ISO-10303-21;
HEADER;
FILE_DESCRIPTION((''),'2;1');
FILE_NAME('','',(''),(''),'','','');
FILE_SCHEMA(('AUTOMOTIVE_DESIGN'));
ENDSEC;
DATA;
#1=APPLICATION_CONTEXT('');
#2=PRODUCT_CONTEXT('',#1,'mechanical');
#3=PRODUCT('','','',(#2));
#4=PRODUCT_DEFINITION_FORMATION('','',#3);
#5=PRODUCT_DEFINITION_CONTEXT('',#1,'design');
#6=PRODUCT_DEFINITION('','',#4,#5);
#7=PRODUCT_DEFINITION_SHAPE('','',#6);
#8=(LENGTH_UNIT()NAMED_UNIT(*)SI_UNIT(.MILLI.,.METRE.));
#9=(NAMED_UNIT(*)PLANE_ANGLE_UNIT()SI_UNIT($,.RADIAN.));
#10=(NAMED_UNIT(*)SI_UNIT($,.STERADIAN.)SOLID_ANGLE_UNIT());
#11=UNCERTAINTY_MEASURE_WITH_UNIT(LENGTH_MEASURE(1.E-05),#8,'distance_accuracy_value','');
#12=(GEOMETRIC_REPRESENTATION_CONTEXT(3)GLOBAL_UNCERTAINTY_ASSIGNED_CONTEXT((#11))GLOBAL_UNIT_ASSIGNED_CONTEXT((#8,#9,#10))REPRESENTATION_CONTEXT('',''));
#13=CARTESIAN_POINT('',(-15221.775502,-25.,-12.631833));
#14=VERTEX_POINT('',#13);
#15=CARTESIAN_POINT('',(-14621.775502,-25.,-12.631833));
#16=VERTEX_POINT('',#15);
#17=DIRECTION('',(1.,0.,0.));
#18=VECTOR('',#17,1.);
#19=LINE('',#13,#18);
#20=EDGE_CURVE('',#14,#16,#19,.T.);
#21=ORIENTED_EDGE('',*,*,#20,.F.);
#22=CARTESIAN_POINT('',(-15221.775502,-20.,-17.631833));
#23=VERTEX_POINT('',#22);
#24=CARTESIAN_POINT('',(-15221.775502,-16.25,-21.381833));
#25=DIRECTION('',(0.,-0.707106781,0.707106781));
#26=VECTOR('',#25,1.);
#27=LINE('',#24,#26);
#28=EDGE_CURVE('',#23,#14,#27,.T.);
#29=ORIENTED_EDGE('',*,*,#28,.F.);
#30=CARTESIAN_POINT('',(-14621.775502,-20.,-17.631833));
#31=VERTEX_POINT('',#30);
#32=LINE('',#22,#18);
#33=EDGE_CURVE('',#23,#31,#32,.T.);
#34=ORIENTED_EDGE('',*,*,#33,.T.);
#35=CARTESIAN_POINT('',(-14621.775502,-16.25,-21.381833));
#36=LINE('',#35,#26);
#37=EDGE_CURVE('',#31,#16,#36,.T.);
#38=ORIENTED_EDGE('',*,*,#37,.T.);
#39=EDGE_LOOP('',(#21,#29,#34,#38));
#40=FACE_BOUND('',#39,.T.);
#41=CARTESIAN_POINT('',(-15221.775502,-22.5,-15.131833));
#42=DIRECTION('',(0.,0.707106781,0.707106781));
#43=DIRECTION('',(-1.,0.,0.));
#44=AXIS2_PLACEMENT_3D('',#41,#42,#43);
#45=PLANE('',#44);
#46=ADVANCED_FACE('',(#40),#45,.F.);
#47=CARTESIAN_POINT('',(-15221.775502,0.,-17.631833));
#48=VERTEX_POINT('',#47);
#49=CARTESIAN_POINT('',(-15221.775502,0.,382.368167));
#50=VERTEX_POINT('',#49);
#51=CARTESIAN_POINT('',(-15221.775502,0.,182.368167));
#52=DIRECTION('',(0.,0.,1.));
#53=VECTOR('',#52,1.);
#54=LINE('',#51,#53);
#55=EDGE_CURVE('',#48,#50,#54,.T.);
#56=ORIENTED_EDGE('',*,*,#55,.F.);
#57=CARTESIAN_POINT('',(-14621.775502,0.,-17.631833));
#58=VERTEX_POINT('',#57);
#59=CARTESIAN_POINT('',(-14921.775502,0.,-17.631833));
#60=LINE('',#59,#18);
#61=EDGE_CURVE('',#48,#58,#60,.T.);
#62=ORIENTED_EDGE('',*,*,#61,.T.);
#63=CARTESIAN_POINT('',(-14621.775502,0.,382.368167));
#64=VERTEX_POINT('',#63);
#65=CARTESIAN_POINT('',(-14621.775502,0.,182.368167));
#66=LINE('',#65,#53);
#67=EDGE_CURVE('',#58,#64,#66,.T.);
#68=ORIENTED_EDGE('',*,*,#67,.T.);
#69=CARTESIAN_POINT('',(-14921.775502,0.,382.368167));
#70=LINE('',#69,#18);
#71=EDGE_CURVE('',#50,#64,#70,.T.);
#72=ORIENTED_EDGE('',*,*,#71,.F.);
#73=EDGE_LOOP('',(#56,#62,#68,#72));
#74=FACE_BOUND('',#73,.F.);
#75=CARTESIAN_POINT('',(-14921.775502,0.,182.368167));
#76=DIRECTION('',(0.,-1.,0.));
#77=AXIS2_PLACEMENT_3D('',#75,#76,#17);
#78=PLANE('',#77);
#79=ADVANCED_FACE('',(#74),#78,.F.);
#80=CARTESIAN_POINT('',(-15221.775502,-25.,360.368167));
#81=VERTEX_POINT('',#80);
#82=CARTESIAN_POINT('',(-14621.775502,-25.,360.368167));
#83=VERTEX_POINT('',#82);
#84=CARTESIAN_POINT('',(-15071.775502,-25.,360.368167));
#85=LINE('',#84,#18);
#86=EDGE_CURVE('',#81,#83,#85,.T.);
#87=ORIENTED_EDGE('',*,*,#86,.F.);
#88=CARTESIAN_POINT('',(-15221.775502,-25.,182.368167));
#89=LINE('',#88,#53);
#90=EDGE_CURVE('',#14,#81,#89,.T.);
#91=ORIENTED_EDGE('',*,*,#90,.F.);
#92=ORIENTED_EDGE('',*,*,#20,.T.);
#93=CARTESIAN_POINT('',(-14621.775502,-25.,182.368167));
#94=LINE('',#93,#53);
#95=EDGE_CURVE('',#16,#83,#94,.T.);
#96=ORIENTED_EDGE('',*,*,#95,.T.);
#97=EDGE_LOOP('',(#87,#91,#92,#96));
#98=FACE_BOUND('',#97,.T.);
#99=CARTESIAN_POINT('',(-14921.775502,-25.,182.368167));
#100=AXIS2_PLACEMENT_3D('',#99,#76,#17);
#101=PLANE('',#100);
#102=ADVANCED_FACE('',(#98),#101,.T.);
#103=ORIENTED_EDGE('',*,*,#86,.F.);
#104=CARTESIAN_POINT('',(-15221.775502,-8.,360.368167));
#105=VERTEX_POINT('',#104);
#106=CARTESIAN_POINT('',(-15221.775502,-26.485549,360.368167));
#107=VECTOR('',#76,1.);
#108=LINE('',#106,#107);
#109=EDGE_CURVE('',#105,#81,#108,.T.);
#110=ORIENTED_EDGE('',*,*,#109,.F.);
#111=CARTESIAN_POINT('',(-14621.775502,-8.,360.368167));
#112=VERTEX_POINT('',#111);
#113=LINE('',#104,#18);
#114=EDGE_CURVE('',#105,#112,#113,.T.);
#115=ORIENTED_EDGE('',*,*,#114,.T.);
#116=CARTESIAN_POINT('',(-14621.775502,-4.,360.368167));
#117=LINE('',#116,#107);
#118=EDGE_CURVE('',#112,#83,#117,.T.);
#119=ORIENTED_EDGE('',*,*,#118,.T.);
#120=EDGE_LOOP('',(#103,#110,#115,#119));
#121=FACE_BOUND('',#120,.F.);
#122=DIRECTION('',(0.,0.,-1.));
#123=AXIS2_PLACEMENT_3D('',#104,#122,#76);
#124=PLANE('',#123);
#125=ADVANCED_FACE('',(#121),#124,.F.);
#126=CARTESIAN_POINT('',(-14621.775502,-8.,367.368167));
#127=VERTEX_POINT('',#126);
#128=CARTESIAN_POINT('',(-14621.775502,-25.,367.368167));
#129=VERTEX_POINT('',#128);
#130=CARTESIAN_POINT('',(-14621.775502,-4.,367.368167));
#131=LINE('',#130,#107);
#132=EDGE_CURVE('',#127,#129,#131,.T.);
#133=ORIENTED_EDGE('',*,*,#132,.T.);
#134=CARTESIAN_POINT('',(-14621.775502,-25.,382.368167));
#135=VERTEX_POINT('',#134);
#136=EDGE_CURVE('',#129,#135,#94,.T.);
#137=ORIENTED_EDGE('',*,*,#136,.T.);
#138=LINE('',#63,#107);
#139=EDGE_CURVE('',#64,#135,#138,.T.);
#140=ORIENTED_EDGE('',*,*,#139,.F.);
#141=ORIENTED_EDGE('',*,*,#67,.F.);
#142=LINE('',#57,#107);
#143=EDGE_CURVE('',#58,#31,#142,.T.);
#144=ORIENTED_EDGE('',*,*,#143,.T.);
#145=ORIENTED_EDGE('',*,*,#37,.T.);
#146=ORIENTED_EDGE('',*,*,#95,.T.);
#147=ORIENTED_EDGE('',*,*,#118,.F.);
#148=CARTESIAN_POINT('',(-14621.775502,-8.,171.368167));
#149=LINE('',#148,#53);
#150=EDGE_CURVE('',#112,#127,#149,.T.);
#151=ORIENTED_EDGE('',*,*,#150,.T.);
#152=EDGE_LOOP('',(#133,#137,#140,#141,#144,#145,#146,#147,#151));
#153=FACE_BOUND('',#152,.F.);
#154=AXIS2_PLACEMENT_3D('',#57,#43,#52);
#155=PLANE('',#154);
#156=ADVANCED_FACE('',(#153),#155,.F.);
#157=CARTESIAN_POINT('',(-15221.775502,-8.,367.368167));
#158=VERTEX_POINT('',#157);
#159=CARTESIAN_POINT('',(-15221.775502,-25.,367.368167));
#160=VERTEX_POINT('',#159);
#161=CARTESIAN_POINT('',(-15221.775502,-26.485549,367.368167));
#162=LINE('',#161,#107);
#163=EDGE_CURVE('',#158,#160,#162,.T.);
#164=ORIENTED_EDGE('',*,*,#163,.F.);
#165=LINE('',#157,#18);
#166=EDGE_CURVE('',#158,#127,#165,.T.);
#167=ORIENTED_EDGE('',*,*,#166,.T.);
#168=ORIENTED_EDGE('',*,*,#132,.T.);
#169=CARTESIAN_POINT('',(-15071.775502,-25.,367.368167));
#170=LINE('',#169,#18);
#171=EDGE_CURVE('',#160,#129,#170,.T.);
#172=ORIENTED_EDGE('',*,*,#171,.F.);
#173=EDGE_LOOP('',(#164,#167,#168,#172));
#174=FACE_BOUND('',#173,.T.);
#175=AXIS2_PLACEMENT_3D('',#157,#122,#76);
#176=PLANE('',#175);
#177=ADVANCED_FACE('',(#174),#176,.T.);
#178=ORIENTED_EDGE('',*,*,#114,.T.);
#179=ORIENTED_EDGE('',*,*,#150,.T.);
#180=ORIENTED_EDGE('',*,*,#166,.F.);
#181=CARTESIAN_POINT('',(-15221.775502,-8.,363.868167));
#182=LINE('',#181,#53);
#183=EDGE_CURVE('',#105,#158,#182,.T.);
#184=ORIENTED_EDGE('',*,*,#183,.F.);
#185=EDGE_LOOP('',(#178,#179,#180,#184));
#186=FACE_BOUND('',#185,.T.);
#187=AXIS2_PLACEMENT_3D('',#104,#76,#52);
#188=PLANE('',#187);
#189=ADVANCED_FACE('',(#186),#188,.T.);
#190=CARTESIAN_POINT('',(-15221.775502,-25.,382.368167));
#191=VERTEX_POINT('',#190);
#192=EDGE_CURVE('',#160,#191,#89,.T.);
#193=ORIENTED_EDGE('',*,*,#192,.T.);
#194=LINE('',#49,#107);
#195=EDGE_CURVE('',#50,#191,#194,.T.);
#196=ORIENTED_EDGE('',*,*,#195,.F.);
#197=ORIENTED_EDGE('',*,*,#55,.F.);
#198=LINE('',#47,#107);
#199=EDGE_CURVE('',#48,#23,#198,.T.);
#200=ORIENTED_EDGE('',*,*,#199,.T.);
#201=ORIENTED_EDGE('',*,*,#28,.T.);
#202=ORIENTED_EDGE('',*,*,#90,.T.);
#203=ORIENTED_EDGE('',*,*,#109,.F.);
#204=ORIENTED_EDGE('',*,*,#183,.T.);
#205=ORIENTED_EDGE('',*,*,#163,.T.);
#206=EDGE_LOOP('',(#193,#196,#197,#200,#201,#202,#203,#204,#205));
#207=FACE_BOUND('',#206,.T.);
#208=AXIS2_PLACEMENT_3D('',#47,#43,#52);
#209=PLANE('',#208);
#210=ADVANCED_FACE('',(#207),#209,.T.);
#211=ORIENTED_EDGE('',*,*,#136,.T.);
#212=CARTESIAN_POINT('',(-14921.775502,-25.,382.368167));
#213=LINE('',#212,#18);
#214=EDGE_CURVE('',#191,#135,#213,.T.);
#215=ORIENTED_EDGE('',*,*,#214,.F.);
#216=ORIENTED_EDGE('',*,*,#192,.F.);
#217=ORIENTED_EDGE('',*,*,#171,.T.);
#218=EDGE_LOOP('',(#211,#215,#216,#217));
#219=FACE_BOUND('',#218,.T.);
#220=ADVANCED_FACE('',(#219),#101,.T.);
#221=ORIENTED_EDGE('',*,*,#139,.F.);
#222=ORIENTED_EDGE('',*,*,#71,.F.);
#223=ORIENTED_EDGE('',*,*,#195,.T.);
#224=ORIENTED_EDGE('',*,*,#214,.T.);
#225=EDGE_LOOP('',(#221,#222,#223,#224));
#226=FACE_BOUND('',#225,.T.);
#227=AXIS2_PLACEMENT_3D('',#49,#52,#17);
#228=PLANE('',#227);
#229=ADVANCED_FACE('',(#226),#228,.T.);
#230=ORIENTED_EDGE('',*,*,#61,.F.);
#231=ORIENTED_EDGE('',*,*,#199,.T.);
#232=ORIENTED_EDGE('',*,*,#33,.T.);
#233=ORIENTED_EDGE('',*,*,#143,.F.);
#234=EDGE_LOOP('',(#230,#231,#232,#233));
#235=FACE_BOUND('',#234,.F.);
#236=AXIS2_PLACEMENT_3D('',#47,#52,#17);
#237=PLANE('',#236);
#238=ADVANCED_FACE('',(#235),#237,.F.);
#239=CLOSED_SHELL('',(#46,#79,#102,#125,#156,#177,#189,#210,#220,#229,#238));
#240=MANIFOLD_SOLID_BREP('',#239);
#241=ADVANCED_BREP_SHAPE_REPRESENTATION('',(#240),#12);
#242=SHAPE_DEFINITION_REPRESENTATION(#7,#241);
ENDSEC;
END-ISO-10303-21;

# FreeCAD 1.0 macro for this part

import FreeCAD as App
import Part
import Sketcher


def edges_at(feature, points):
    """Names of the edges that pass closest to the given points."""
    edges = feature.Shape.Edges
    near = lambda p: min(range(len(edges)), key=lambda i: edges[i].distToShape(Part.Vertex(*p))[0])
    return sorted({f"Edge{near(p) + 1}" for p in points})


def add_polygon(sketch, points):
    """Adds a closed chain of lines whose ends are joined by coincident constraints."""
    first, n = sketch.GeometryCount, len(points)
    for a, b in zip(points, points[1:] + points[:1]):
        sketch.addGeometry(Part.LineSegment(App.Vector(*a, 0), App.Vector(*b, 0)), False)
    for i in range(n):
        sketch.addConstraint(Sketcher.Constraint("Coincident", first + i, 2, first + (i + 1) % n, 1))

doc = App.newDocument("Part")
body = doc.addObject("PartDesign::Body", "Body")

# Sketch on XZ plane
sketch1 = body.newObject("Sketcher::SketchObject", "Sketch")
sketch1.AttachmentSupport = (doc.getObject("XZ_Plane"), [""])
sketch1.MapMode = "FlatFace"
add_polygon(sketch1, [(-15221.775502, 382.368167), (-15221.775502, -17.631833), (-14621.775502, -17.631833), (-14621.775502, 382.368167)])  # lines 0-3
sketch1.addConstraint([
    Sketcher.Constraint("Vertical", 0),
    Sketcher.Constraint("Horizontal", 1),
    Sketcher.Constraint("Vertical", 2),
    Sketcher.Constraint("Horizontal", 3),
    Sketcher.Constraint("DistanceX", 1, 1, 1, 2, 600.0),
    Sketcher.Constraint("DistanceY", 0, 2, 0, 1, 400.0),
    Sketcher.Constraint("DistanceX", 0, 2, -1, 1, 15221.775502),
    Sketcher.Constraint("DistanceY", 0, 2, -1, 1, 17.631833),
])
pad1 = body.newObject("PartDesign::Pad", "Pad")
pad1.Profile = sketch1
pad1.Length = 25
doc.recompute()

chamfer = body.newObject("PartDesign::Chamfer", "Chamfer")
chamfer.Base = (pad1, edges_at(pad1, [(-14921.776, -25, -17.632)]))
chamfer.Size = 5

# Sketch on YZ plane
sketch2 = body.newObject("Sketcher::SketchObject", "Sketch001")
sketch2.AttachmentSupport = (doc.getObject("YZ_Plane"), [""])
sketch2.MapMode = "FlatFace"
sketch2.AttachmentOffset = App.Placement(App.Vector(0, 0, -15221.775502), App.Rotation())
add_polygon(sketch2, [(-8, 367.368167), (-8, 360.368167), (-44.971098, 360.368167), (-44.971098, 367.368167)])  # lines 0-3
sketch2.addConstraint([
    Sketcher.Constraint("Vertical", 0),
    Sketcher.Constraint("Horizontal", 1),
    Sketcher.Constraint("Vertical", 2),
    Sketcher.Constraint("Horizontal", 3),
    Sketcher.Constraint("DistanceY", 0, 2, 0, 1, 7.0),
    Sketcher.Constraint("DistanceX", 0, 2, -1, 1, 8.0),
    Sketcher.Constraint("DistanceX", 1, 2, 1, 1, 36.971099),
    Sketcher.Constraint("DistanceY", -1, 1, 0, 2, 360.368167),
])
pocket1 = body.newObject("PartDesign::Pocket", "Pocket")
pocket1.Profile = sketch2
pocket1.Length = 1000
pocket1.Reversed = True

doc.recompute()
